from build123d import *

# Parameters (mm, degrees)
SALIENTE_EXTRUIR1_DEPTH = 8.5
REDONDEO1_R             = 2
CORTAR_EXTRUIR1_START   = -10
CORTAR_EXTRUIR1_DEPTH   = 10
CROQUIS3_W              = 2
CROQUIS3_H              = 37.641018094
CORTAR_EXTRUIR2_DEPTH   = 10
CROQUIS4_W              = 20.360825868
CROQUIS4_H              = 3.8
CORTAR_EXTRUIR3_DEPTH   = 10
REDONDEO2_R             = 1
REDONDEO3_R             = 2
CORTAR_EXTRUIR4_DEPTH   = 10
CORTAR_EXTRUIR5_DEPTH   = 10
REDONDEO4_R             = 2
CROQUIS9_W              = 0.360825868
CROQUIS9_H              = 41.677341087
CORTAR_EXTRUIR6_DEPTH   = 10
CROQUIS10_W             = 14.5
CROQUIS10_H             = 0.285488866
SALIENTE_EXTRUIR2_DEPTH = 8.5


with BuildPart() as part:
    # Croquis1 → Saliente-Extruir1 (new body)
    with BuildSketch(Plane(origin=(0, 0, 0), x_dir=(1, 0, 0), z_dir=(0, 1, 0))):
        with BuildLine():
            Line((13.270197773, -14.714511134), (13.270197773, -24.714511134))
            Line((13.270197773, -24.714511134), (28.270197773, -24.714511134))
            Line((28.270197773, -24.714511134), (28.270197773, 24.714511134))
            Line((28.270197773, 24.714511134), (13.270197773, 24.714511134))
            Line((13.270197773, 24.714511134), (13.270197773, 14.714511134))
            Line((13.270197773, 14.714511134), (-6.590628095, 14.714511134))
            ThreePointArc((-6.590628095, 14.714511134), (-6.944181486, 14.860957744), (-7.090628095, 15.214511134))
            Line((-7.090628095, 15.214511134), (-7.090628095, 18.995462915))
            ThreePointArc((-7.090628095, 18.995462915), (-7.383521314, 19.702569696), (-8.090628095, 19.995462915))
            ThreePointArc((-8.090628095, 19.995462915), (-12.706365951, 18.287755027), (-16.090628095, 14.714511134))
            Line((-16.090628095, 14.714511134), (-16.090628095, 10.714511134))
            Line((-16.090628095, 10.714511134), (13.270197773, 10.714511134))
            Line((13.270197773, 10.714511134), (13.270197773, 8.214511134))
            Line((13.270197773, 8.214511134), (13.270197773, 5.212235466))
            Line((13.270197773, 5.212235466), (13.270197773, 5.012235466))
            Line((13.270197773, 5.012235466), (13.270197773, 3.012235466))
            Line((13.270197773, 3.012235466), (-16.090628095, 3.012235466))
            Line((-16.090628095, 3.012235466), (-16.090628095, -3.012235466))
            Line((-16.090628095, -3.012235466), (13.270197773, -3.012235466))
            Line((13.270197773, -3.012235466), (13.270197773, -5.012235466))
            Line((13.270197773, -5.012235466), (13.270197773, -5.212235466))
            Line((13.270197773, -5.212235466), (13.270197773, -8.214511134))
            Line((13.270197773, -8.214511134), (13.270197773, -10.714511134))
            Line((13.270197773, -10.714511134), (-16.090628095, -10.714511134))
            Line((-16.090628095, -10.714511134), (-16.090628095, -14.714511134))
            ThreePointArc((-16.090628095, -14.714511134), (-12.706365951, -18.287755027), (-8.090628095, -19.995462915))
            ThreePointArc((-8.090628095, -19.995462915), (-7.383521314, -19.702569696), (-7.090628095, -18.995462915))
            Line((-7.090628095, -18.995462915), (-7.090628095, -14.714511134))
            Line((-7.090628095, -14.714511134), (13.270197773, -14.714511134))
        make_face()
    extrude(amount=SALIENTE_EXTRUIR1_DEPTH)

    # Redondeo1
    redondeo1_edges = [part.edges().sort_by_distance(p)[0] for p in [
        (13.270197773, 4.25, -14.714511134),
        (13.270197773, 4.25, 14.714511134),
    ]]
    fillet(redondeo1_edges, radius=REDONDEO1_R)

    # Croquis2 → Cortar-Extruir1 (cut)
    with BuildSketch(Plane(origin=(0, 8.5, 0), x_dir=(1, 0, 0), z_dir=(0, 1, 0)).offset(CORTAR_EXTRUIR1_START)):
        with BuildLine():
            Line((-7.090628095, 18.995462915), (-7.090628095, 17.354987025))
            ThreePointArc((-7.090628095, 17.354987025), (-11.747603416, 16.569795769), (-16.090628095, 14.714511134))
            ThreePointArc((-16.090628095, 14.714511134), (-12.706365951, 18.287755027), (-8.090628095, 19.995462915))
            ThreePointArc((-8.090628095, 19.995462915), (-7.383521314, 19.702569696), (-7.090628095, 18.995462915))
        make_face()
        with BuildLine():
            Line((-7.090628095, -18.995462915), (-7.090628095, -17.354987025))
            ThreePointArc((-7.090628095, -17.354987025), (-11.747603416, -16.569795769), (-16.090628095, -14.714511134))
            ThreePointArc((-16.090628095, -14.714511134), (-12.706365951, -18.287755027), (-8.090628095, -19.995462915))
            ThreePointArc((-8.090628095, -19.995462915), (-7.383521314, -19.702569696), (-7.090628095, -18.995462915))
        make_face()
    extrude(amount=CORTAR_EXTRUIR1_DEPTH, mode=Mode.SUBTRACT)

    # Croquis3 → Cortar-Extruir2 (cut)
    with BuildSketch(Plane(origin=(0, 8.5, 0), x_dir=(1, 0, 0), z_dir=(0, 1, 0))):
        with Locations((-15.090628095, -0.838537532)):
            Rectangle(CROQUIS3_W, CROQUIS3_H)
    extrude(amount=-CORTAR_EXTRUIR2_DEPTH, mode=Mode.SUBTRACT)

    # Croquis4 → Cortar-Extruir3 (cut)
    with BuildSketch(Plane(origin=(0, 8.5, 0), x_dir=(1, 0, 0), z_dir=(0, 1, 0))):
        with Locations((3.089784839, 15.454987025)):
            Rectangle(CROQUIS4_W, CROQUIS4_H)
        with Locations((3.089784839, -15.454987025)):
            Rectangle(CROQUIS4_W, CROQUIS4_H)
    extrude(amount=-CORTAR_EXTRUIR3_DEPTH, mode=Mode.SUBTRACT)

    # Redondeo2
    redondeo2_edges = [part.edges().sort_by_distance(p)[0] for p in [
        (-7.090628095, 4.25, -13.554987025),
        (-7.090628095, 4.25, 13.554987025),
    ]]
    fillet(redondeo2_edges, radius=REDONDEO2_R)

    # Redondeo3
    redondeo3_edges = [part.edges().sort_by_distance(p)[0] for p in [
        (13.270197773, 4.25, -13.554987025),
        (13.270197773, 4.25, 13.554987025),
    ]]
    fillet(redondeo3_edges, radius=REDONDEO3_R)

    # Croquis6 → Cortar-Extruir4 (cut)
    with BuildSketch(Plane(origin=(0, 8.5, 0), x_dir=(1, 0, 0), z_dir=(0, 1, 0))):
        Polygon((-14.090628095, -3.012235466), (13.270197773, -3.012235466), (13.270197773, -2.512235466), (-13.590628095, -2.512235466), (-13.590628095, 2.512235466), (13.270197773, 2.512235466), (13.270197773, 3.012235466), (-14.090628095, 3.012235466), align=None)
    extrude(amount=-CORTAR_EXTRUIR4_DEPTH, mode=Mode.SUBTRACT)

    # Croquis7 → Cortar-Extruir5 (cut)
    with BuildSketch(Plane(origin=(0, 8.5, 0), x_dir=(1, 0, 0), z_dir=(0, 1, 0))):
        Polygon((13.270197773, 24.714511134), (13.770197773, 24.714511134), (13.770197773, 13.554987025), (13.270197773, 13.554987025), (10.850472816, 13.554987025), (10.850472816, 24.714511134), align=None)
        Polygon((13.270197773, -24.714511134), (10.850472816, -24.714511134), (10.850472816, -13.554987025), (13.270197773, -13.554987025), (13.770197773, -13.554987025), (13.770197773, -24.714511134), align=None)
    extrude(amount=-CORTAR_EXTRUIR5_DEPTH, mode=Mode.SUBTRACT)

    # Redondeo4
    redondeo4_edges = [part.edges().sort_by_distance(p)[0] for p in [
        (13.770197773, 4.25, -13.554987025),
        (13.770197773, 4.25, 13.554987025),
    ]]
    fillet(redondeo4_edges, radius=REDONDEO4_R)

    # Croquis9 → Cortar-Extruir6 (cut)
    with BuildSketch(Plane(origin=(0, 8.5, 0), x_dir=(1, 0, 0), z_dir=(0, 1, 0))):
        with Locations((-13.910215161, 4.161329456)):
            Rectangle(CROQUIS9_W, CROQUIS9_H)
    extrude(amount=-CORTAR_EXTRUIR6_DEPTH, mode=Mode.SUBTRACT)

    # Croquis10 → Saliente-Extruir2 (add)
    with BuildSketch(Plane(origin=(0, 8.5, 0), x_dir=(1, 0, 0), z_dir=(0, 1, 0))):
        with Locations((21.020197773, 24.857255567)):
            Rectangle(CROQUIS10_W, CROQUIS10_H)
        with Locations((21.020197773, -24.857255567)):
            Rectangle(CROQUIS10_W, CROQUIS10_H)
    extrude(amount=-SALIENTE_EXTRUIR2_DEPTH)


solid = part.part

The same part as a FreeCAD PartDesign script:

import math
import FreeCAD as App
import Part
import Sketcher
Q = App.Units.Quantity


def edges_at(feature, points):
    """Names of the edges that pass closest to the given points."""
    edges = feature.Shape.Edges
    near = lambda p: min(range(len(edges)), key=lambda i: edges[i].distToShape(Part.Vertex(*p))[0])
    return sorted({f"Edge{near(p) + 1}" for p in points})


def add_polygon(sketch, points):
    """Adds a closed chain of lines whose ends are joined by coincident constraints."""
    first, n = sketch.GeometryCount, len(points)
    for a, b in zip(points, points[1:] + points[:1]):
        sketch.addGeometry(Part.LineSegment(App.Vector(*a, 0), App.Vector(*b, 0)), False)
    for i in range(n):
        sketch.addConstraint(Sketcher.Constraint("Coincident", first + i, 2, first + (i + 1) % n, 1))

doc = App.newDocument("Part")
body = doc.addObject("PartDesign::Body", "Body")

sketch1 = body.newObject("Sketcher::SketchObject", "Sketch")
sketch1.AttachmentSupport = (doc.getObject("XZ_Plane"), [""])
sketch1.MapMode = "FlatFace"
sketch1.addGeometry([
    Part.LineSegment(App.Vector(13.270198, 14.714511, 0), App.Vector(13.270198, 24.714511, 0)),
    Part.LineSegment(App.Vector(13.270198, 24.714511, 0), App.Vector(28.270198, 24.714511, 0)),
    Part.LineSegment(App.Vector(28.270198, 24.714511, 0), App.Vector(28.270198, -24.714511, 0)),
    Part.LineSegment(App.Vector(28.270198, -24.714511, 0), App.Vector(13.270198, -24.714511, 0)),
    Part.LineSegment(App.Vector(13.270198, -24.714511, 0), App.Vector(13.270198, -14.714511, 0)),
    Part.LineSegment(App.Vector(13.270198, -14.714511, 0), App.Vector(-6.590628, -14.714511, 0)),
    Part.ArcOfCircle(Part.Circle(App.Vector(-6.590628, -15.214511, 0), App.Vector(0, 0, 1), 0.5), math.radians(90), math.radians(180)),
    Part.LineSegment(App.Vector(-7.090628, -15.214511, 0), App.Vector(-7.090628, -18.995463, 0)),
    Part.ArcOfCircle(Part.Circle(App.Vector(-8.090628, -18.995463, 0), App.Vector(0, 0, 1), 1), math.radians(-90), math.radians(0)),
    Part.ArcOfCircle(Part.Circle(App.Vector(-6.736905, -9.244747, 0), App.Vector(0, 0, 1), 10.83561), math.radians(-149.682244), math.radians(-97.176874)),
    Part.LineSegment(App.Vector(-16.090628, -14.714511, 0), App.Vector(-16.090628, -10.714511, 0)),
    Part.LineSegment(App.Vector(-16.090628, -10.714511, 0), App.Vector(13.270198, -10.714511, 0)),
    Part.LineSegment(App.Vector(13.270198, -10.714511, 0), App.Vector(13.270198, -3.012235, 0)),
    Part.LineSegment(App.Vector(13.270198, -3.012235, 0), App.Vector(-16.090628, -3.012235, 0)),
    Part.LineSegment(App.Vector(-16.090628, -3.012235, 0), App.Vector(-16.090628, 3.012235, 0)),
    Part.LineSegment(App.Vector(-16.090628, 3.012235, 0), App.Vector(13.270198, 3.012235, 0)),
    Part.LineSegment(App.Vector(13.270198, 3.012235, 0), App.Vector(13.270198, 10.714511, 0)),
    Part.LineSegment(App.Vector(13.270198, 10.714511, 0), App.Vector(-16.090628, 10.714511, 0)),
    Part.LineSegment(App.Vector(-16.090628, 10.714511, 0), App.Vector(-16.090628, 14.714511, 0)),
    Part.ArcOfCircle(Part.Circle(App.Vector(-6.736905, 9.244747, 0), App.Vector(0, 0, 1), 10.83561), math.radians(97.176874), math.radians(149.682244)),
    Part.ArcOfCircle(Part.Circle(App.Vector(-8.090628, 18.995463, 0), App.Vector(0, 0, 1), 1), math.radians(0), math.radians(90)),
    Part.LineSegment(App.Vector(-7.090628, 18.995463, 0), App.Vector(-7.090628, 14.714511, 0)),
    Part.LineSegment(App.Vector(-7.090628, 14.714511, 0), App.Vector(13.270198, 14.714511, 0)),
], False)
sketch1.addConstraint([
    Sketcher.Constraint("Coincident", 0, 2, 1, 1),
    Sketcher.Constraint("Coincident", 1, 2, 2, 1),
    Sketcher.Constraint("Coincident", 2, 2, 3, 1),
    Sketcher.Constraint("Coincident", 3, 2, 4, 1),
    Sketcher.Constraint("Coincident", 4, 2, 5, 1),
    Sketcher.Constraint("Tangent", 5, 2, 6, 1),
    Sketcher.Constraint("Tangent", 6, 2, 7, 1),
    Sketcher.Constraint("Tangent", 7, 2, 8, 2),
    Sketcher.Constraint("Coincident", 8, 1, 9, 2),
    Sketcher.Constraint("Coincident", 9, 1, 10, 1),
    Sketcher.Constraint("Coincident", 10, 2, 11, 1),
    Sketcher.Constraint("Coincident", 11, 2, 12, 1),
    Sketcher.Constraint("Coincident", 12, 2, 13, 1),
    Sketcher.Constraint("Coincident", 13, 2, 14, 1),
    Sketcher.Constraint("Coincident", 14, 2, 15, 1),
    Sketcher.Constraint("Coincident", 15, 2, 16, 1),
    Sketcher.Constraint("Coincident", 16, 2, 17, 1),
    Sketcher.Constraint("Coincident", 17, 2, 18, 1),
    Sketcher.Constraint("Coincident", 18, 2, 19, 2),
    Sketcher.Constraint("Coincident", 19, 1, 20, 2),
    Sketcher.Constraint("Tangent", 20, 1, 21, 1),
    Sketcher.Constraint("Coincident", 21, 2, 22, 1),
    Sketcher.Constraint("Coincident", 22, 2, 0, 1),
    Sketcher.Constraint("Vertical", 0),
    Sketcher.Constraint("Horizontal", 1),
    Sketcher.Constraint("Vertical", 2),
    Sketcher.Constraint("Horizontal", 3),
    Sketcher.Constraint("Vertical", 4),
    Sketcher.Constraint("Horizontal", 5),
    Sketcher.Constraint("Vertical", 7),
    Sketcher.Constraint("Vertical", 10),
    Sketcher.Constraint("Horizontal", 11),
    Sketcher.Constraint("Vertical", 12),
    Sketcher.Constraint("Horizontal", 13),
    Sketcher.Constraint("Vertical", 14),
    Sketcher.Constraint("Horizontal", 15),
    Sketcher.Constraint("Vertical", 16),
    Sketcher.Constraint("Horizontal", 17),
    Sketcher.Constraint("Vertical", 18),
    Sketcher.Constraint("Vertical", 21),
    Sketcher.Constraint("Horizontal", 22),
    Sketcher.Constraint("Equal", 9, 19),
    Sketcher.Constraint("Equal", 8, 20),
    Sketcher.Constraint("Symmetric", 9, 3, 19, 3, -1),
    Sketcher.Constraint("Symmetric", 8, 3, 20, 3, -1),
    Sketcher.Constraint("Symmetric", 0, 2, 3, 2, -1),
    Sketcher.Constraint("Symmetric", 12, 2, 15, 2, -1),
    Sketcher.Constraint("Symmetric", 10, 2, 17, 2, -1),
    Sketcher.Constraint("Horizontal", 5, 2, 9, 1),
    Sketcher.Constraint("Horizontal", 18, 2, 21, 2),
    Sketcher.Constraint("Vertical", 20, 3, 8, 1),
    Sketcher.Constraint("Vertical", 4, 2, 11, 2),
    Sketcher.Constraint("Vertical", 10, 2, 13, 2),
    Sketcher.Constraint("Radius", 8, Q("1 mm")),
    Sketcher.Constraint("Radius", 6, Q("0.5 mm")),
    Sketcher.Constraint("DistanceX", 1, 1, 1, 2, Q("15 mm")),
    Sketcher.Constraint("DistanceY", 0, 1, 0, 2, Q("10 mm")),
    Sketcher.Constraint("DistanceY", 10, 1, 10, 2, Q("4 mm")),
    Sketcher.Constraint("DistanceX", 9, 1, 6, 2, Q("9 mm")),
    Sketcher.Constraint("Radius", 9, Q("10.83561 mm")),
    Sketcher.Constraint("DistanceY", 7, 2, 7, 1, Q("3.780952 mm")),
    Sketcher.Constraint("DistanceY", 14, 1, 14, 2, Q("6.024471 mm")),
    Sketcher.Constraint("DistanceX", 5, 2, 5, 1, Q("19.860826 mm")),
    Sketcher.Constraint("DistanceY", 2, 2, 2, 1, Q("49.429022 mm")),
    Sketcher.Constraint("DistanceX", 6, 3, -1, 1, Q("6.590628 mm")),
])
pad1 = body.newObject("PartDesign::Pad", "Pad")
pad1.Profile = sketch1
pad1.Length = 8.5
pad1.Reversed = True
doc.recompute()

fillet = body.newObject("PartDesign::Fillet", "Fillet")
fillet.Base = (pad1, edges_at(pad1, [(13.27, 4.25, -14.715), (13.27, 4.25, 14.715)]))
fillet.Radius = 2

sketch2 = body.newObject("Sketcher::SketchObject", "Sketch001")
sketch2.AttachmentSupport = (doc.getObject("XZ_Plane"), [""])
sketch2.MapMode = "FlatFace"
sketch2.AttachmentOffset = App.Placement(App.Vector(0, 0, 1.5), App.Rotation())
sketch2.addGeometry([
    Part.LineSegment(App.Vector(-7.090628, -17.354987, 0), App.Vector(-7.090628, -18.995463, 0)),
    Part.ArcOfCircle(Part.Circle(App.Vector(-8.090628, -18.995463, 0), App.Vector(0, 0, 1), 1), math.radians(-90), math.radians(0)),
    Part.ArcOfCircle(Part.Circle(App.Vector(-6.736905, -9.244747, 0), App.Vector(0, 0, 1), 10.83561), math.radians(-149.682244), math.radians(-97.176874)),
    Part.ArcOfCircle(Part.Circle(App.Vector(-6.117198, 2.62131, 0), App.Vector(0, 0, 1), 20), math.radians(-119.912147), math.radians(-92.789775)),
    Part.LineSegment(App.Vector(-7.090628, 18.995463, 0), App.Vector(-7.090628, 17.354987, 0)),
    Part.ArcOfCircle(Part.Circle(App.Vector(-6.117198, -2.62131, 0), App.Vector(0, 0, 1), 20), math.radians(92.789775), math.radians(119.912147)),
    Part.ArcOfCircle(Part.Circle(App.Vector(-6.736905, 9.244747, 0), App.Vector(0, 0, 1), 10.83561), math.radians(97.176874), math.radians(149.682244)),
    Part.ArcOfCircle(Part.Circle(App.Vector(-8.090628, 18.995463, 0), App.Vector(0, 0, 1), 1), math.radians(0), math.radians(90)),
], False)
sketch2.addConstraint([
    Sketcher.Constraint("Tangent", 0, 2, 1, 2),
    Sketcher.Constraint("Coincident", 1, 1, 2, 2),
    Sketcher.Constraint("Coincident", 2, 1, 3, 1),
    Sketcher.Constraint("Coincident", 3, 2, 0, 1),
    Sketcher.Constraint("Coincident", 4, 2, 5, 1),
    Sketcher.Constraint("Coincident", 5, 2, 6, 2),
    Sketcher.Constraint("Coincident", 6, 1, 7, 2),
    Sketcher.Constraint("Tangent", 7, 1, 4, 1),
    Sketcher.Constraint("Vertical", 0),
    Sketcher.Constraint("Vertical", 4),
    Sketcher.Constraint("Equal", 3, 5),
    Sketcher.Constraint("Equal", 2, 6),
    Sketcher.Constraint("Equal", 1, 7),
    Sketcher.Constraint("Symmetric", 3, 3, 5, 3, -1),
    Sketcher.Constraint("Symmetric", 2, 3, 6, 3, -1),
    Sketcher.Constraint("Symmetric", 1, 3, 7, 3, -1),
    Sketcher.Constraint("Vertical", 7, 3, 1, 1),
    Sketcher.Constraint("Radius", 1, Q("1 mm")),
    Sketcher.Constraint("Radius", 3, Q("20 mm")),
    Sketcher.Constraint("DistanceX", 2, 1, 1, 3, Q("8 mm")),
    Sketcher.Constraint("Radius", 2, Q("10.83561 mm")),
    Sketcher.Constraint("DistanceY", 2, 1, 5, 3, Q("12.093201 mm")),
    Sketcher.Constraint("DistanceY", 0, 2, 0, 1, Q("1.640476 mm")),
    Sketcher.Constraint("DistanceX", 1, 3, -1, 1, Q("8.090628 mm")),
    Sketcher.Constraint("DistanceY", -1, 1, 3, 3, Q("2.62131 mm")),
])
pocket1 = body.newObject("PartDesign::Pocket", "Pocket")
pocket1.Profile = sketch2
pocket1.Length = 10

sketch3 = body.newObject("Sketcher::SketchObject", "Sketch002")
sketch3.AttachmentSupport = (doc.getObject("XZ_Plane"), [""])
sketch3.MapMode = "FlatFace"
sketch3.AttachmentOffset = App.Placement(App.Vector(0, 0, -8.5), App.Rotation())
add_polygon(sketch3, [(-16.090628, -17.981972), (-16.090628, 19.659047), (-14.090628, 19.659047), (-14.090628, -17.981972)])
sketch3.addConstraint([
    Sketcher.Constraint("Vertical", 0),
    Sketcher.Constraint("Horizontal", 1),
    Sketcher.Constraint("Vertical", 2),
    Sketcher.Constraint("Horizontal", 3),
    Sketcher.Constraint("DistanceX", 1, 1, 1, 2, Q("2 mm")),
    Sketcher.Constraint("DistanceY", 0, 1, 0, 2, Q("37.641018 mm")),
    Sketcher.Constraint("DistanceX", 0, 2, -1, 1, Q("16.090628 mm")),
    Sketcher.Constraint("DistanceY", 2, 2, -1, 1, Q("17.981972 mm")),
])
pocket2 = body.newObject("PartDesign::Pocket", "Pocket001")
pocket2.Profile = sketch3
pocket2.Length = 10
pocket2.Reversed = True

sketch4 = body.newObject("Sketcher::SketchObject", "Sketch003")
sketch4.AttachmentSupport = (doc.getObject("XZ_Plane"), [""])
sketch4.MapMode = "FlatFace"
sketch4.AttachmentOffset = App.Placement(App.Vector(0, 0, -8.5), App.Rotation())
add_polygon(sketch4, [(-7.090628, -17.354987), (-7.090628, -13.554987), (13.270198, -13.554987), (13.270198, -17.354987)])
add_polygon(sketch4, [(-7.090628, 13.554987), (-7.090628, 17.354987), (13.270198, 17.354987), (13.270198, 13.554987)])
sketch4.addConstraint([
    Sketcher.Constraint("Vertical", 0),
    Sketcher.Constraint("Horizontal", 1),
    Sketcher.Constraint("Vertical", 2),
    Sketcher.Constraint("Horizontal", 3),
    Sketcher.Constraint("Vertical", 4),
    Sketcher.Constraint("Horizontal", 5),
    Sketcher.Constraint("Vertical", 6),
    Sketcher.Constraint("Horizontal", 7),
    Sketcher.Constraint("Symmetric", 3, 2, 4, 2, -1),
    Sketcher.Constraint("Symmetric", 1, 2, 6, 2, -1),
    Sketcher.Constraint("DistanceY", 0, 1, 0, 2, Q("3.8 mm")),
    Sketcher.Constraint("DistanceX", 1, 1, 1, 2, Q("20.360826 mm")),
    Sketcher.Constraint("DistanceX", 0, 2, -1, 1, Q("7.090628 mm")),
    Sketcher.Constraint("DistanceY", 0, 2, -1, 1, Q("13.554987 mm")),
])
pocket3 = body.newObject("PartDesign::Pocket", "Pocket002")
pocket3.Profile = sketch4
pocket3.Length = 10
pocket3.Reversed = True
doc.recompute()

fillet2 = body.newObject("PartDesign::Fillet", "Fillet001")
fillet2.Base = (pocket3, edges_at(pocket3, [(-7.091, 4.25, -13.555), (-7.091, 4.25, 13.555)]))
fillet2.Radius = 1
doc.recompute()

fillet3 = body.newObject("PartDesign::Fillet", "Fillet002")
fillet3.Base = (fillet2, edges_at(fillet2, [(13.27, 4.25, -13.555), (13.27, 4.25, 13.555)]))
fillet3.Radius = 2

sketch5 = body.newObject("Sketcher::SketchObject", "Sketch004")
sketch5.AttachmentSupport = (doc.getObject("XZ_Plane"), [""])
sketch5.MapMode = "FlatFace"
sketch5.AttachmentOffset = App.Placement(App.Vector(0, 0, -8.5), App.Rotation())
add_polygon(sketch5, [(-14.090628, 3.012235), (13.270198, 3.012235), (13.270198, 2.512235), (-13.590628, 2.512235), (-13.590628, -2.512235), (13.270198, -2.512235), (13.270198, -3.012235), (-14.090628, -3.012235)])
sketch5.addConstraint([
    Sketcher.Constraint("Horizontal", 0),
    Sketcher.Constraint("Vertical", 1),
    Sketcher.Constraint("Horizontal", 2),
    Sketcher.Constraint("Vertical", 3),
    Sketcher.Constraint("Horizontal", 4),
    Sketcher.Constraint("Vertical", 5),
    Sketcher.Constraint("Horizontal", 6),
    Sketcher.Constraint("Vertical", 7),
    Sketcher.Constraint("Symmetric", 1, 2, 4, 2, -1),
    Sketcher.Constraint("Equal", 1, 5),
    Sketcher.Constraint("DistanceY", 1, 2, 1, 1, Q("0.5 mm")),
    Sketcher.Constraint("DistanceX", 6, 2, 3, 2, Q("0.5 mm")),
    Sketcher.Constraint("DistanceY", 3, 2, 3, 1, Q("5.024471 mm")),
    Sketcher.Constraint("DistanceX", 0, 1, 0, 2, Q("27.360826 mm")),
    Sketcher.Constraint("DistanceX", 2, 2, -1, 1, Q("13.590628 mm")),
])
pocket4 = body.newObject("PartDesign::Pocket", "Pocket003")
pocket4.Profile = sketch5
pocket4.Length = 10
pocket4.Reversed = True

sketch6 = body.newObject("Sketcher::SketchObject", "Sketch005")
sketch6.AttachmentSupport = (doc.getObject("XZ_Plane"), [""])
sketch6.MapMode = "FlatFace"
sketch6.AttachmentOffset = App.Placement(App.Vector(0, 0, -8.5), App.Rotation())
add_polygon(sketch6, [(13.770198, -24.714511), (10.850473, -24.714511), (10.850473, -13.554987), (13.770198, -13.554987)])
add_polygon(sketch6, [(10.850473, 24.714511), (13.770198, 24.714511), (13.770198, 13.554987), (10.850473, 13.554987)])
sketch6.addConstraint([
    Sketcher.Constraint("Horizontal", 0),
    Sketcher.Constraint("Vertical", 1),
    Sketcher.Constraint("Horizontal", 2),
    Sketcher.Constraint("Vertical", 3),
    Sketcher.Constraint("Horizontal", 4),
    Sketcher.Constraint("Vertical", 5),
    Sketcher.Constraint("Horizontal", 6),
    Sketcher.Constraint("Vertical", 7),
    Sketcher.Constraint("Symmetric", 3, 2, 4, 2, -1),
    Sketcher.Constraint("Symmetric", 1, 2, 6, 2, -1),
    Sketcher.Constraint("DistanceY", 2, 2, 4, 2, Q("38.269498 mm")),
    Sketcher.Constraint("DistanceX", 0, 2, 0, 1, Q("2.919725 mm")),
    Sketcher.Constraint("DistanceY", 1, 1, 1, 2, Q("11.159524 mm")),
    Sketcher.Constraint("DistanceX", -1, 1, 0, 2, Q("10.850473 mm")),
])
pocket5 = body.newObject("PartDesign::Pocket", "Pocket004")
pocket5.Profile = sketch6
pocket5.Length = 10
pocket5.Reversed = True
doc.recompute()

fillet4 = body.newObject("PartDesign::Fillet", "Fillet003")
fillet4.Base = (pocket5, edges_at(pocket5, [(13.77, 4.25, -13.555), (13.77, 4.25, 13.555)]))
fillet4.Radius = 2

sketch7 = body.newObject("Sketcher::SketchObject", "Sketch006")
sketch7.AttachmentSupport = (doc.getObject("XZ_Plane"), [""])
sketch7.MapMode = "FlatFace"
sketch7.AttachmentOffset = App.Placement(App.Vector(0, 0, -8.5), App.Rotation())
add_polygon(sketch7, [(-14.090628, -25), (-14.090628, 16.677341), (-13.729802, 16.677341), (-13.729802, -25)])
sketch7.addConstraint([
    Sketcher.Constraint("Vertical", 0),
    Sketcher.Constraint("Horizontal", 1),
    Sketcher.Constraint("Vertical", 2),
    Sketcher.Constraint("Horizontal", 3),
    Sketcher.Constraint("DistanceY", 2, 2, -1, 1, Q("25 mm")),
    Sketcher.Constraint("DistanceY", 0, 1, 0, 2, Q("41.677341 mm")),
    Sketcher.Constraint("DistanceX", 1, 1, 1, 2, Q("0.360826 mm")),
    Sketcher.Constraint("DistanceX", 0, 2, -1, 1, Q("14.090628 mm")),
])
pocket6 = body.newObject("PartDesign::Pocket", "Pocket005")
pocket6.Profile = sketch7
pocket6.Length = 10
pocket6.Reversed = True

sketch8 = body.newObject("Sketcher::SketchObject", "Sketch007")
sketch8.AttachmentSupport = (doc.getObject("XZ_Plane"), [""])
sketch8.MapMode = "FlatFace"
sketch8.AttachmentOffset = App.Placement(App.Vector(0, 0, -8.5), App.Rotation())
add_polygon(sketch8, [(13.770198, -25), (13.770198, -24.714511), (28.270198, -24.714511), (28.270198, -25)])
add_polygon(sketch8, [(13.770198, 24.714511), (13.770198, 25), (28.270198, 25), (28.270198, 24.714511)])
sketch8.addConstraint([
    Sketcher.Constraint("Vertical", 0),
    Sketcher.Constraint("Horizontal", 1),
    Sketcher.Constraint("Vertical", 2),
    Sketcher.Constraint("Horizontal", 3),
    Sketcher.Constraint("Vertical", 4),
    Sketcher.Constraint("Horizontal", 5),
    Sketcher.Constraint("Vertical", 6),
    Sketcher.Constraint("Horizontal", 7),
    Sketcher.Constraint("Symmetric", 3, 2, 4, 2, -1),
    Sketcher.Constraint("Symmetric", 1, 2, 6, 2, -1),
    Sketcher.Constraint("DistanceX", 1, 1, 1, 2, Q("14.5 mm")),
    Sketcher.Constraint("DistanceY", 2, 2, -1, 1, Q("25 mm")),
    Sketcher.Constraint("DistanceY", 0, 1, 0, 2, Q("0.285489 mm")),
    Sketcher.Constraint("DistanceX", -1, 1, 0, 2, Q("13.770198 mm")),
])
pad2 = body.newObject("PartDesign::Pad", "Pad001")
pad2.Profile = sketch8
pad2.Length = 8.5

doc.recompute()
